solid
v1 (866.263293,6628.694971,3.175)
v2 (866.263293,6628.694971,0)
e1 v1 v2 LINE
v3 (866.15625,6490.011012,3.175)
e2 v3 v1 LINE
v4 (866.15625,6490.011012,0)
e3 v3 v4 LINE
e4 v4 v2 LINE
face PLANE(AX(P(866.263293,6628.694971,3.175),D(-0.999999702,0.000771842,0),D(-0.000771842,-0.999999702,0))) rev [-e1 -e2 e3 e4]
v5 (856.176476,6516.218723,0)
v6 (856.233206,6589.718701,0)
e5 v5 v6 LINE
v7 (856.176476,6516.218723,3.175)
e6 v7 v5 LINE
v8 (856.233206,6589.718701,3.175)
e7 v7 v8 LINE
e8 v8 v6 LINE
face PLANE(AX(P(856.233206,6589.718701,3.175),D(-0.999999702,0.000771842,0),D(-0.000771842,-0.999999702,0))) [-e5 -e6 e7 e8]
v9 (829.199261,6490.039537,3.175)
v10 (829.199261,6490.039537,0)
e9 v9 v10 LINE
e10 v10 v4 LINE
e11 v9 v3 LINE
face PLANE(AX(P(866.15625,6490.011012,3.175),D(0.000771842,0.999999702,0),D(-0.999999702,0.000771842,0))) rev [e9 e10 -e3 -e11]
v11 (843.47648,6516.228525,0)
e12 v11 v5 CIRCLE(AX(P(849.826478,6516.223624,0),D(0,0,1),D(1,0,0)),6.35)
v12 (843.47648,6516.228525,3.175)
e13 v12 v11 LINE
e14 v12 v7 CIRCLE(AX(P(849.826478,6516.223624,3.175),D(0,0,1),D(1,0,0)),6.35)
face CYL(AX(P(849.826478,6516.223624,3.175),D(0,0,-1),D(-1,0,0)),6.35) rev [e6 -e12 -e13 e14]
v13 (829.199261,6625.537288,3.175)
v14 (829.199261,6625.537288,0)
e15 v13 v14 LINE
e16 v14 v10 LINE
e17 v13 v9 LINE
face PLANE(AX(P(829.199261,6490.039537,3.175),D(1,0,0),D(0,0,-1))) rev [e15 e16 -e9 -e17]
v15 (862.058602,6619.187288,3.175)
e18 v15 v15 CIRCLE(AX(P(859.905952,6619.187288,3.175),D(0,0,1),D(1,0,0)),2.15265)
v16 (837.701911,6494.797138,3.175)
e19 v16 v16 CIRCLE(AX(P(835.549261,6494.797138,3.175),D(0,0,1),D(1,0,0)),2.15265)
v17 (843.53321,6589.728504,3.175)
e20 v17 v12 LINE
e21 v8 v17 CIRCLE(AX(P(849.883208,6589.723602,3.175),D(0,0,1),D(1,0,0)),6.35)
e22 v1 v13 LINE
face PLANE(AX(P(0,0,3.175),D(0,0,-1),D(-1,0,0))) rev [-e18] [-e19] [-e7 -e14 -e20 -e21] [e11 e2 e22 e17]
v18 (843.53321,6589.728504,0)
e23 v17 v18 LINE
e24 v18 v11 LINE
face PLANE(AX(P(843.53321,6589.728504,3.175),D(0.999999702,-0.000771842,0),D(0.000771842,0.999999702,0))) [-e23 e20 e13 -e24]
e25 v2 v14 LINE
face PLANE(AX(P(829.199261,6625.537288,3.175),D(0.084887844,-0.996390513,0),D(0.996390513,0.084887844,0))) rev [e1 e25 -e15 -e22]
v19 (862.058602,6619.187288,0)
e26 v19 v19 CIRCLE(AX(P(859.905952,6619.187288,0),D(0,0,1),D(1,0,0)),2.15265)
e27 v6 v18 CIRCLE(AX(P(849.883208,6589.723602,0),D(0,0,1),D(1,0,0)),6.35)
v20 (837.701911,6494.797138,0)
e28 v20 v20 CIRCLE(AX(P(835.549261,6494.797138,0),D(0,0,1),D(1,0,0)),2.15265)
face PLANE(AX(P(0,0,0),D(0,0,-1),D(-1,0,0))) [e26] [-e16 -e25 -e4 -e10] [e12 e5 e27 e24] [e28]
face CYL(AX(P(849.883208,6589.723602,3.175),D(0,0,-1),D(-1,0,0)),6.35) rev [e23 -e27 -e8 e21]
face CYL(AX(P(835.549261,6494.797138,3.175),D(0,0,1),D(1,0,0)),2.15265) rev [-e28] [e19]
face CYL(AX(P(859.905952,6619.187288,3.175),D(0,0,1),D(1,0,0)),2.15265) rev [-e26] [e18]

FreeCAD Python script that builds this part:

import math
import FreeCAD as App
import Part
import Sketcher
Q = App.Units.Quantity


def add_polygon(sketch, points):
    """Adds a closed chain of lines whose ends are joined by coincident constraints."""
    first, n = sketch.GeometryCount, len(points)
    for a, b in zip(points, points[1:] + points[:1]):
        sketch.addGeometry(Part.LineSegment(App.Vector(*a, 0), App.Vector(*b, 0)), False)
    for i in range(n):
        sketch.addConstraint(Sketcher.Constraint("Coincident", first + i, 2, first + (i + 1) % n, 1))

doc = App.newDocument("Part")
params = doc.addObject("Spreadsheet::Sheet", "Params")
for row, (alias, value) in enumerate([
    ("sketch1_radius", "0.25 in"),
    ("sketch1_length", "5.46 in"),
    ("sketch1_length2", "1.455 in"),
    ("pad1_length", "0.125 in"),
    ("hole_diameter", "0.1695 in"),
], start=1):
    params.set(f"A{row}", alias)
    params.set(f"B{row}", "=" + value)
    params.setAlias(f"B{row}", alias)

body = doc.addObject("PartDesign::Body", "Body")

# Sketch on XY plane
sketch1 = body.newObject("Sketcher::SketchObject", "Sketch")
sketch1.AttachmentSupport = (doc.getObject("XY_Plane"), [""])
sketch1.MapMode = "FlatFace"
add_polygon(sketch1, [(829, 6490), (866, 6490), (866, 6629), (829, 6626)])  # lines 0-3
sketch1.addGeometry(Part.LineSegment(App.Vector(856, 6590, 0), App.Vector(856, 6516, 0)), False)  # 4
sketch1.addGeometry(Part.ArcOfCircle(Part.Circle(App.Vector(850, 6516, 0), App.Vector(0, 0, 1), 6), math.radians(180), math.radians(360)), False)  # 5
sketch1.addGeometry(Part.LineSegment(App.Vector(843, 6516, 0), App.Vector(844, 6590, 0)), False)  # 6
sketch1.addGeometry(Part.ArcOfCircle(Part.Circle(App.Vector(850, 6590, 0), App.Vector(0, 0, 1), 6), math.radians(0), math.radians(180)), False)  # 7
sketch1.addConstraint(Sketcher.Constraint("Tangent", 4, 2, 5, 2))
sketch1.addConstraint(Sketcher.Constraint("Tangent", 5, 1, 6, 1))
sketch1.addConstraint(Sketcher.Constraint("Tangent", 6, 2, 7, 2))
sketch1.addConstraint(Sketcher.Constraint("Tangent", 7, 1, 4, 1))
sketch1.addConstraint(Sketcher.Constraint("Vertical", 3))
sketch1.addConstraint(Sketcher.Constraint("Equal", 5, 7))
sketch1.addConstraint(Sketcher.Constraint("Perpendicular", 0, 1))
sketch1.addConstraint(Sketcher.Constraint("Parallel", 1, 4))
sketch1.addConstraint(Sketcher.Constraint("Radius", 5, Q("0.25 in")))
sketch1.addConstraint(Sketcher.Constraint("Distance", 1, Q("5.46 in")))
sketch1.addConstraint(Sketcher.Constraint("Distance", 0, Q("1.455 in")))
sketch1.addConstraint(Sketcher.Constraint("Distance", 2, Q("1.4644999 in")))
sketch1.addConstraint(Sketcher.Constraint("DistanceY", 5, 3, 7, 3, Q("2.8936999 in")))
sketch1.addConstraint(Sketcher.Constraint("DistanceY", 3, 2, 3, 1, 135.49775))
sketch1.addConstraint(Sketcher.Constraint("DistanceY", -1, 1, 7, 1, 6589.718701))
sketch1.addConstraint(Sketcher.Constraint("DistanceX", -1, 1, 7, 3, 849.883208))
sketch1.addConstraint(Sketcher.Constraint("DistanceX", -1, 1, 0, 2, 866.15625))
sketch1.addConstraint(Sketcher.Constraint("DistanceY", -1, 1, 1, 2, 6628.694971))
sketch1.setExpression("Constraints[12]", "Params.sketch1_radius")
sketch1.setExpression("Constraints[13]", "Params.sketch1_length")
sketch1.setExpression("Constraints[14]", "Params.sketch1_length2")
pad1 = body.newObject("PartDesign::Pad", "Pad")
pad1.Profile = sketch1
pad1.setExpression("Length", "Params.pad1_length")

# Sketch on XY plane
sketch2 = body.newObject("Sketcher::SketchObject", "Sketch001")
sketch2.AttachmentSupport = (doc.getObject("XY_Plane"), [""])
sketch2.MapMode = "FlatFace"
sketch2.AttachmentOffset = App.Placement(App.Vector(0, 0, 0.125 * 25.4), App.Rotation())
sketch2.addGeometry(Part.Circle(App.Vector(859.905952, 6619.187288, 0), App.Vector(0, 0, 1), 2.15265), False)
sketch2.addGeometry(Part.Circle(App.Vector(835.549261, 6494.797138, 0), App.Vector(0, 0, 1), 2.15265), False)
sketch2.addConstraint(Sketcher.Constraint("Equal", 0, 1))
sketch2.addConstraint(Sketcher.Constraint("Diameter", 0, Q("0.1695 in")))
sketch2.addConstraint(Sketcher.Constraint("DistanceX", -1, 1, 1, 3, 835.549261))
sketch2.addConstraint(Sketcher.Constraint("DistanceX", 1, 3, 0, 3, 24.356691))
sketch2.addConstraint(Sketcher.Constraint("DistanceY", 1, 3, 0, 3, 124.39015))
sketch2.addConstraint(Sketcher.Constraint("DistanceY", -1, 1, 0, 3, 6619.187288))
doc.recompute()
hole = body.newObject("PartDesign::Hole", "Hole")
hole.Profile = sketch2
hole.ThreadType = "None"
hole.setExpression("Diameter", "Params.hole_diameter")
hole.DepthType = "ThroughAll"

doc.recompute()
